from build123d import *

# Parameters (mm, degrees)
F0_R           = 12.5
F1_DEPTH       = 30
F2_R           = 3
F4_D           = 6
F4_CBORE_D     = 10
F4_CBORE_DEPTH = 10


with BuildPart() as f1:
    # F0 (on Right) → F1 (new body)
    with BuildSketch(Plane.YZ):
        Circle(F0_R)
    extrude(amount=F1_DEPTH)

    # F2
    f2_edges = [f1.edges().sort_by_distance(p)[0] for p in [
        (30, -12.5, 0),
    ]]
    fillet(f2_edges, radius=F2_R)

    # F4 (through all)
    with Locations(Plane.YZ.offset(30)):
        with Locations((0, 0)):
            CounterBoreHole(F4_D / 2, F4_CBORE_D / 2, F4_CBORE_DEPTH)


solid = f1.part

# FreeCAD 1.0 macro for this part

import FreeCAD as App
import Part
import Sketcher
from FreeCAD import Vector


def edges_at(feature, points):
    """Names of the edges that pass closest to the given points."""
    edges = feature.Shape.Edges
    near = lambda p: min(range(len(edges)), key=lambda i: edges[i].distToShape(Part.Vertex(*p))[0])
    return sorted({f"Edge{near(p) + 1}" for p in points})

doc = App.newDocument("Part")
body = doc.addObject("PartDesign::Body", "Body")

sketch1 = doc.addObject("Sketcher::SketchObject", "Sketch")
body.addObject(sketch1)
sketch1.AttachmentSupport = (doc.YZ_Plane, [""])
sketch1.MapMode = "FlatFace"
sketch1.addGeometry(Part.Circle(Vector(0, 0, 0), Vector(0, 0, 1), 12), False)
sketch1.addConstraint([
    Sketcher.Constraint("Coincident", 0, 3, -1, 1),
    Sketcher.Constraint("Diameter", 0, 25.0),
])
pad1 = doc.addObject("PartDesign::Pad", "Pad")
body.addObject(pad1)
pad1.Profile = sketch1
pad1.Length = 30
doc.recompute()

fillet = doc.addObject("PartDesign::Fillet", "Fillet")
body.addObject(fillet)
fillet.Base = (pad1, edges_at(pad1, [(30, -12.5, 0)]))
fillet.Radius = 3

sketch2 = doc.addObject("Sketcher::SketchObject", "Sketch001")
body.addObject(sketch2)
sketch2.AttachmentSupport = (doc.YZ_Plane, [""])
sketch2.MapMode = "FlatFace"
sketch2.AttachmentOffset = App.Placement(Vector(0, 0, 30), App.Rotation())
sketch2.addGeometry(Part.Circle(Vector(0, 0, 0), Vector(0, 0, 1), 3), False)
sketch2.addConstraint([
    Sketcher.Constraint("Coincident", 0, 3, -1, 1),
    Sketcher.Constraint("Diameter", 0, 6.0),
])
doc.recompute()
hole = doc.addObject("PartDesign::Hole", "Hole")
body.addObject(hole)
hole.Profile = sketch2
hole.ThreadType = "None"
hole.Diameter = 6
hole.DepthType = "ThroughAll"
hole.HoleCutType = "Counterbore"
hole.HoleCutDiameter = 10
hole.HoleCutDepth = 10

doc.recompute()
